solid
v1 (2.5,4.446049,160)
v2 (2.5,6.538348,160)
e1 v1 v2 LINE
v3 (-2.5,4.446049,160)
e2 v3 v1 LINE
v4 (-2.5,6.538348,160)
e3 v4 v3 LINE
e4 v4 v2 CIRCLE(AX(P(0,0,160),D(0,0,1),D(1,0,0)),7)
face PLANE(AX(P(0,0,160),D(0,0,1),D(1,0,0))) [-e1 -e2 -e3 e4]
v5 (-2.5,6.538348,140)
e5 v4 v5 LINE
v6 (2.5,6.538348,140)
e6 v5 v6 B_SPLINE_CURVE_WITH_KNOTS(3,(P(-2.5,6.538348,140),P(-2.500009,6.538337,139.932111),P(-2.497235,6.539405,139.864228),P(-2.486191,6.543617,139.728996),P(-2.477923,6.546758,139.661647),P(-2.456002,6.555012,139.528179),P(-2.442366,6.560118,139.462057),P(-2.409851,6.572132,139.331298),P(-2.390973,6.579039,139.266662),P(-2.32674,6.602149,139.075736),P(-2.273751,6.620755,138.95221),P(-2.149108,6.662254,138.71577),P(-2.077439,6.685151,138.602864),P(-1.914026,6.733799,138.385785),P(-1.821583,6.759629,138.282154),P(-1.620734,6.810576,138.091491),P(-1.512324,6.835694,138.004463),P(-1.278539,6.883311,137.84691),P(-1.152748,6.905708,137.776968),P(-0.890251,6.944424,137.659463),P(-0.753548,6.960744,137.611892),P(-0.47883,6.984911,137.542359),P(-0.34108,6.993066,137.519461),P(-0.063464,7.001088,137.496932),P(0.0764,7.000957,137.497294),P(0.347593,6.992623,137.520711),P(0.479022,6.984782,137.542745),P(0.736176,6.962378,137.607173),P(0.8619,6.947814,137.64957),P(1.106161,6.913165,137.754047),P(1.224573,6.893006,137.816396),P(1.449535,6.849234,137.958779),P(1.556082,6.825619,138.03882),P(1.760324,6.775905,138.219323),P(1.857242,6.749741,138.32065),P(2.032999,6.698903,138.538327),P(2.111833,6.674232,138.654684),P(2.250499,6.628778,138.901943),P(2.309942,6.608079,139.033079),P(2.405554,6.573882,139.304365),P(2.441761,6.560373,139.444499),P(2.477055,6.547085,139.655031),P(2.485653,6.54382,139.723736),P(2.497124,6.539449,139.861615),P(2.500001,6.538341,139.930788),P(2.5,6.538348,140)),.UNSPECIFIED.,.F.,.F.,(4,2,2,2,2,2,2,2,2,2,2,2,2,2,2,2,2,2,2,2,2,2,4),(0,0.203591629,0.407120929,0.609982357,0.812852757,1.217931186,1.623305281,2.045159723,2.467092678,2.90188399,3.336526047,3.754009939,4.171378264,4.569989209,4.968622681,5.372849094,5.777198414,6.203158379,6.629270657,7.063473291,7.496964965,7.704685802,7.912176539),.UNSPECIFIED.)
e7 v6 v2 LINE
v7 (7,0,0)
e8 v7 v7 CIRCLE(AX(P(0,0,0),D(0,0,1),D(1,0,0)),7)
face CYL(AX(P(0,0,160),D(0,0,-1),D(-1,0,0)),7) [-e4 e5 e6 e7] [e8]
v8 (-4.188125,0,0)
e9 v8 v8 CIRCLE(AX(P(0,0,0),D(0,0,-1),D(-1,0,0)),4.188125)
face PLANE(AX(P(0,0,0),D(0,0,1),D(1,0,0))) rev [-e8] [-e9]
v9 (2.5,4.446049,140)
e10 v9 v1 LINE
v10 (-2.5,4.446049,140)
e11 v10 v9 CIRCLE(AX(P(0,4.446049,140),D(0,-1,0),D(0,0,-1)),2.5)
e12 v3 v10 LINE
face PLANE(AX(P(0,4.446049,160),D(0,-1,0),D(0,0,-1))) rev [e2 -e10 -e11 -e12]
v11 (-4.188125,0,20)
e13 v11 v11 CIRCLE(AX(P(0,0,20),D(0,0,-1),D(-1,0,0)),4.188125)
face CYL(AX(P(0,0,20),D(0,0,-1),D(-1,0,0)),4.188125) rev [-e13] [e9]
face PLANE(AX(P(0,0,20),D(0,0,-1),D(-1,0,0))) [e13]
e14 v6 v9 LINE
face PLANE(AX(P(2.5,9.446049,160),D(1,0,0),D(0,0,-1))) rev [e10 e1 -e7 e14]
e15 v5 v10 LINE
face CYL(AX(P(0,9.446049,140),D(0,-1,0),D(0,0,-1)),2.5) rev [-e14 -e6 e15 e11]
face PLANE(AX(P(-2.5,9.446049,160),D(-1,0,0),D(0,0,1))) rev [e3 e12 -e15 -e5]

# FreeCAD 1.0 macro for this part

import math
import FreeCAD as App
import Part
import Sketcher

doc = App.newDocument("Part")
body = doc.addObject("PartDesign::Body", "Body")

# Sketch on XY plane
sketch1 = body.newObject("Sketcher::SketchObject", "Sketch")
sketch1.AttachmentSupport = (doc.getObject("XY_Plane"), [""])
sketch1.MapMode = "FlatFace"
sketch1.addGeometry(Part.Circle(App.Vector(0, 0, 0), App.Vector(0, 0, 1), 7), False)
sketch1.addConstraint(Sketcher.Constraint("Coincident", 0, 3, -1, 1))
sketch1.addConstraint(Sketcher.Constraint("Diameter", 0, 14.0))
pad1 = body.newObject("PartDesign::Pad", "Pad")
pad1.Profile = sketch1
pad1.Length = 160

# Sketch on XY plane
sketch2 = body.newObject("Sketcher::SketchObject", "Sketch001")
sketch2.AttachmentSupport = (doc.getObject("XY_Plane"), [""])
sketch2.MapMode = "FlatFace"
sketch2.addGeometry(Part.Circle(App.Vector(0, 0, 0), App.Vector(0, 0, 1), 4.188125), False)
sketch2.addConstraint(Sketcher.Constraint("Coincident", 0, 3, -1, 1))
sketch2.addConstraint(Sketcher.Constraint("Diameter", 0, 8.37625))
pocket1 = body.newObject("PartDesign::Pocket", "Pocket")
pocket1.Profile = sketch2
pocket1.Length = 20
pocket1.Reversed = True

# Sketch on XZ plane
sketch3 = body.newObject("Sketcher::SketchObject", "Sketch002")
sketch3.AttachmentSupport = (doc.getObject("XZ_Plane"), [""])
sketch3.MapMode = "FlatFace"
sketch3.AttachmentOffset = App.Placement(App.Vector(0, 0, -6.946049), App.Rotation())
sketch3.addGeometry(Part.LineSegment(App.Vector(2.5, 140, 0), App.Vector(2.5, 160, 0)), False)
sketch3.addGeometry(Part.ArcOfCircle(Part.Circle(App.Vector(0, 160, 0), App.Vector(0, 0, 1), 2.5), math.radians(0), math.radians(180)), False)
sketch3.addGeometry(Part.LineSegment(App.Vector(-2.5, 160, 0), App.Vector(-2.5, 140, 0)), False)
sketch3.addGeometry(Part.ArcOfCircle(Part.Circle(App.Vector(0, 140, 0), App.Vector(0, 0, 1), 2.5), math.radians(180), math.radians(360)), False)
sketch3.addConstraint(Sketcher.Constraint("Tangent", 0, 2, 1, 1))
sketch3.addConstraint(Sketcher.Constraint("Tangent", 1, 2, 2, 1))
sketch3.addConstraint(Sketcher.Constraint("Tangent", 2, 2, 3, 1))
sketch3.addConstraint(Sketcher.Constraint("Tangent", 3, 2, 0, 1))
sketch3.addConstraint(Sketcher.Constraint("Vertical", 0))
sketch3.addConstraint(Sketcher.Constraint("Vertical", 2))
sketch3.addConstraint(Sketcher.Constraint("PointOnObject", 1, 3, -2))
sketch3.addConstraint(Sketcher.Constraint("Radius", 1, 2.5))
sketch3.addConstraint(Sketcher.Constraint("DistanceY", 0, 1, 0, 2, 20.0))
sketch3.addConstraint(Sketcher.Constraint("DistanceY", -1, 1, 1, 3, 160.0))
pocket2 = body.newObject("PartDesign::Pocket", "Pocket001")
pocket2.Profile = sketch3
pocket2.Type = "TwoLengths"
pocket2.Length = 2.5
pocket2.Length2 = 2.5
pocket2.Reversed = True

doc.recompute()
